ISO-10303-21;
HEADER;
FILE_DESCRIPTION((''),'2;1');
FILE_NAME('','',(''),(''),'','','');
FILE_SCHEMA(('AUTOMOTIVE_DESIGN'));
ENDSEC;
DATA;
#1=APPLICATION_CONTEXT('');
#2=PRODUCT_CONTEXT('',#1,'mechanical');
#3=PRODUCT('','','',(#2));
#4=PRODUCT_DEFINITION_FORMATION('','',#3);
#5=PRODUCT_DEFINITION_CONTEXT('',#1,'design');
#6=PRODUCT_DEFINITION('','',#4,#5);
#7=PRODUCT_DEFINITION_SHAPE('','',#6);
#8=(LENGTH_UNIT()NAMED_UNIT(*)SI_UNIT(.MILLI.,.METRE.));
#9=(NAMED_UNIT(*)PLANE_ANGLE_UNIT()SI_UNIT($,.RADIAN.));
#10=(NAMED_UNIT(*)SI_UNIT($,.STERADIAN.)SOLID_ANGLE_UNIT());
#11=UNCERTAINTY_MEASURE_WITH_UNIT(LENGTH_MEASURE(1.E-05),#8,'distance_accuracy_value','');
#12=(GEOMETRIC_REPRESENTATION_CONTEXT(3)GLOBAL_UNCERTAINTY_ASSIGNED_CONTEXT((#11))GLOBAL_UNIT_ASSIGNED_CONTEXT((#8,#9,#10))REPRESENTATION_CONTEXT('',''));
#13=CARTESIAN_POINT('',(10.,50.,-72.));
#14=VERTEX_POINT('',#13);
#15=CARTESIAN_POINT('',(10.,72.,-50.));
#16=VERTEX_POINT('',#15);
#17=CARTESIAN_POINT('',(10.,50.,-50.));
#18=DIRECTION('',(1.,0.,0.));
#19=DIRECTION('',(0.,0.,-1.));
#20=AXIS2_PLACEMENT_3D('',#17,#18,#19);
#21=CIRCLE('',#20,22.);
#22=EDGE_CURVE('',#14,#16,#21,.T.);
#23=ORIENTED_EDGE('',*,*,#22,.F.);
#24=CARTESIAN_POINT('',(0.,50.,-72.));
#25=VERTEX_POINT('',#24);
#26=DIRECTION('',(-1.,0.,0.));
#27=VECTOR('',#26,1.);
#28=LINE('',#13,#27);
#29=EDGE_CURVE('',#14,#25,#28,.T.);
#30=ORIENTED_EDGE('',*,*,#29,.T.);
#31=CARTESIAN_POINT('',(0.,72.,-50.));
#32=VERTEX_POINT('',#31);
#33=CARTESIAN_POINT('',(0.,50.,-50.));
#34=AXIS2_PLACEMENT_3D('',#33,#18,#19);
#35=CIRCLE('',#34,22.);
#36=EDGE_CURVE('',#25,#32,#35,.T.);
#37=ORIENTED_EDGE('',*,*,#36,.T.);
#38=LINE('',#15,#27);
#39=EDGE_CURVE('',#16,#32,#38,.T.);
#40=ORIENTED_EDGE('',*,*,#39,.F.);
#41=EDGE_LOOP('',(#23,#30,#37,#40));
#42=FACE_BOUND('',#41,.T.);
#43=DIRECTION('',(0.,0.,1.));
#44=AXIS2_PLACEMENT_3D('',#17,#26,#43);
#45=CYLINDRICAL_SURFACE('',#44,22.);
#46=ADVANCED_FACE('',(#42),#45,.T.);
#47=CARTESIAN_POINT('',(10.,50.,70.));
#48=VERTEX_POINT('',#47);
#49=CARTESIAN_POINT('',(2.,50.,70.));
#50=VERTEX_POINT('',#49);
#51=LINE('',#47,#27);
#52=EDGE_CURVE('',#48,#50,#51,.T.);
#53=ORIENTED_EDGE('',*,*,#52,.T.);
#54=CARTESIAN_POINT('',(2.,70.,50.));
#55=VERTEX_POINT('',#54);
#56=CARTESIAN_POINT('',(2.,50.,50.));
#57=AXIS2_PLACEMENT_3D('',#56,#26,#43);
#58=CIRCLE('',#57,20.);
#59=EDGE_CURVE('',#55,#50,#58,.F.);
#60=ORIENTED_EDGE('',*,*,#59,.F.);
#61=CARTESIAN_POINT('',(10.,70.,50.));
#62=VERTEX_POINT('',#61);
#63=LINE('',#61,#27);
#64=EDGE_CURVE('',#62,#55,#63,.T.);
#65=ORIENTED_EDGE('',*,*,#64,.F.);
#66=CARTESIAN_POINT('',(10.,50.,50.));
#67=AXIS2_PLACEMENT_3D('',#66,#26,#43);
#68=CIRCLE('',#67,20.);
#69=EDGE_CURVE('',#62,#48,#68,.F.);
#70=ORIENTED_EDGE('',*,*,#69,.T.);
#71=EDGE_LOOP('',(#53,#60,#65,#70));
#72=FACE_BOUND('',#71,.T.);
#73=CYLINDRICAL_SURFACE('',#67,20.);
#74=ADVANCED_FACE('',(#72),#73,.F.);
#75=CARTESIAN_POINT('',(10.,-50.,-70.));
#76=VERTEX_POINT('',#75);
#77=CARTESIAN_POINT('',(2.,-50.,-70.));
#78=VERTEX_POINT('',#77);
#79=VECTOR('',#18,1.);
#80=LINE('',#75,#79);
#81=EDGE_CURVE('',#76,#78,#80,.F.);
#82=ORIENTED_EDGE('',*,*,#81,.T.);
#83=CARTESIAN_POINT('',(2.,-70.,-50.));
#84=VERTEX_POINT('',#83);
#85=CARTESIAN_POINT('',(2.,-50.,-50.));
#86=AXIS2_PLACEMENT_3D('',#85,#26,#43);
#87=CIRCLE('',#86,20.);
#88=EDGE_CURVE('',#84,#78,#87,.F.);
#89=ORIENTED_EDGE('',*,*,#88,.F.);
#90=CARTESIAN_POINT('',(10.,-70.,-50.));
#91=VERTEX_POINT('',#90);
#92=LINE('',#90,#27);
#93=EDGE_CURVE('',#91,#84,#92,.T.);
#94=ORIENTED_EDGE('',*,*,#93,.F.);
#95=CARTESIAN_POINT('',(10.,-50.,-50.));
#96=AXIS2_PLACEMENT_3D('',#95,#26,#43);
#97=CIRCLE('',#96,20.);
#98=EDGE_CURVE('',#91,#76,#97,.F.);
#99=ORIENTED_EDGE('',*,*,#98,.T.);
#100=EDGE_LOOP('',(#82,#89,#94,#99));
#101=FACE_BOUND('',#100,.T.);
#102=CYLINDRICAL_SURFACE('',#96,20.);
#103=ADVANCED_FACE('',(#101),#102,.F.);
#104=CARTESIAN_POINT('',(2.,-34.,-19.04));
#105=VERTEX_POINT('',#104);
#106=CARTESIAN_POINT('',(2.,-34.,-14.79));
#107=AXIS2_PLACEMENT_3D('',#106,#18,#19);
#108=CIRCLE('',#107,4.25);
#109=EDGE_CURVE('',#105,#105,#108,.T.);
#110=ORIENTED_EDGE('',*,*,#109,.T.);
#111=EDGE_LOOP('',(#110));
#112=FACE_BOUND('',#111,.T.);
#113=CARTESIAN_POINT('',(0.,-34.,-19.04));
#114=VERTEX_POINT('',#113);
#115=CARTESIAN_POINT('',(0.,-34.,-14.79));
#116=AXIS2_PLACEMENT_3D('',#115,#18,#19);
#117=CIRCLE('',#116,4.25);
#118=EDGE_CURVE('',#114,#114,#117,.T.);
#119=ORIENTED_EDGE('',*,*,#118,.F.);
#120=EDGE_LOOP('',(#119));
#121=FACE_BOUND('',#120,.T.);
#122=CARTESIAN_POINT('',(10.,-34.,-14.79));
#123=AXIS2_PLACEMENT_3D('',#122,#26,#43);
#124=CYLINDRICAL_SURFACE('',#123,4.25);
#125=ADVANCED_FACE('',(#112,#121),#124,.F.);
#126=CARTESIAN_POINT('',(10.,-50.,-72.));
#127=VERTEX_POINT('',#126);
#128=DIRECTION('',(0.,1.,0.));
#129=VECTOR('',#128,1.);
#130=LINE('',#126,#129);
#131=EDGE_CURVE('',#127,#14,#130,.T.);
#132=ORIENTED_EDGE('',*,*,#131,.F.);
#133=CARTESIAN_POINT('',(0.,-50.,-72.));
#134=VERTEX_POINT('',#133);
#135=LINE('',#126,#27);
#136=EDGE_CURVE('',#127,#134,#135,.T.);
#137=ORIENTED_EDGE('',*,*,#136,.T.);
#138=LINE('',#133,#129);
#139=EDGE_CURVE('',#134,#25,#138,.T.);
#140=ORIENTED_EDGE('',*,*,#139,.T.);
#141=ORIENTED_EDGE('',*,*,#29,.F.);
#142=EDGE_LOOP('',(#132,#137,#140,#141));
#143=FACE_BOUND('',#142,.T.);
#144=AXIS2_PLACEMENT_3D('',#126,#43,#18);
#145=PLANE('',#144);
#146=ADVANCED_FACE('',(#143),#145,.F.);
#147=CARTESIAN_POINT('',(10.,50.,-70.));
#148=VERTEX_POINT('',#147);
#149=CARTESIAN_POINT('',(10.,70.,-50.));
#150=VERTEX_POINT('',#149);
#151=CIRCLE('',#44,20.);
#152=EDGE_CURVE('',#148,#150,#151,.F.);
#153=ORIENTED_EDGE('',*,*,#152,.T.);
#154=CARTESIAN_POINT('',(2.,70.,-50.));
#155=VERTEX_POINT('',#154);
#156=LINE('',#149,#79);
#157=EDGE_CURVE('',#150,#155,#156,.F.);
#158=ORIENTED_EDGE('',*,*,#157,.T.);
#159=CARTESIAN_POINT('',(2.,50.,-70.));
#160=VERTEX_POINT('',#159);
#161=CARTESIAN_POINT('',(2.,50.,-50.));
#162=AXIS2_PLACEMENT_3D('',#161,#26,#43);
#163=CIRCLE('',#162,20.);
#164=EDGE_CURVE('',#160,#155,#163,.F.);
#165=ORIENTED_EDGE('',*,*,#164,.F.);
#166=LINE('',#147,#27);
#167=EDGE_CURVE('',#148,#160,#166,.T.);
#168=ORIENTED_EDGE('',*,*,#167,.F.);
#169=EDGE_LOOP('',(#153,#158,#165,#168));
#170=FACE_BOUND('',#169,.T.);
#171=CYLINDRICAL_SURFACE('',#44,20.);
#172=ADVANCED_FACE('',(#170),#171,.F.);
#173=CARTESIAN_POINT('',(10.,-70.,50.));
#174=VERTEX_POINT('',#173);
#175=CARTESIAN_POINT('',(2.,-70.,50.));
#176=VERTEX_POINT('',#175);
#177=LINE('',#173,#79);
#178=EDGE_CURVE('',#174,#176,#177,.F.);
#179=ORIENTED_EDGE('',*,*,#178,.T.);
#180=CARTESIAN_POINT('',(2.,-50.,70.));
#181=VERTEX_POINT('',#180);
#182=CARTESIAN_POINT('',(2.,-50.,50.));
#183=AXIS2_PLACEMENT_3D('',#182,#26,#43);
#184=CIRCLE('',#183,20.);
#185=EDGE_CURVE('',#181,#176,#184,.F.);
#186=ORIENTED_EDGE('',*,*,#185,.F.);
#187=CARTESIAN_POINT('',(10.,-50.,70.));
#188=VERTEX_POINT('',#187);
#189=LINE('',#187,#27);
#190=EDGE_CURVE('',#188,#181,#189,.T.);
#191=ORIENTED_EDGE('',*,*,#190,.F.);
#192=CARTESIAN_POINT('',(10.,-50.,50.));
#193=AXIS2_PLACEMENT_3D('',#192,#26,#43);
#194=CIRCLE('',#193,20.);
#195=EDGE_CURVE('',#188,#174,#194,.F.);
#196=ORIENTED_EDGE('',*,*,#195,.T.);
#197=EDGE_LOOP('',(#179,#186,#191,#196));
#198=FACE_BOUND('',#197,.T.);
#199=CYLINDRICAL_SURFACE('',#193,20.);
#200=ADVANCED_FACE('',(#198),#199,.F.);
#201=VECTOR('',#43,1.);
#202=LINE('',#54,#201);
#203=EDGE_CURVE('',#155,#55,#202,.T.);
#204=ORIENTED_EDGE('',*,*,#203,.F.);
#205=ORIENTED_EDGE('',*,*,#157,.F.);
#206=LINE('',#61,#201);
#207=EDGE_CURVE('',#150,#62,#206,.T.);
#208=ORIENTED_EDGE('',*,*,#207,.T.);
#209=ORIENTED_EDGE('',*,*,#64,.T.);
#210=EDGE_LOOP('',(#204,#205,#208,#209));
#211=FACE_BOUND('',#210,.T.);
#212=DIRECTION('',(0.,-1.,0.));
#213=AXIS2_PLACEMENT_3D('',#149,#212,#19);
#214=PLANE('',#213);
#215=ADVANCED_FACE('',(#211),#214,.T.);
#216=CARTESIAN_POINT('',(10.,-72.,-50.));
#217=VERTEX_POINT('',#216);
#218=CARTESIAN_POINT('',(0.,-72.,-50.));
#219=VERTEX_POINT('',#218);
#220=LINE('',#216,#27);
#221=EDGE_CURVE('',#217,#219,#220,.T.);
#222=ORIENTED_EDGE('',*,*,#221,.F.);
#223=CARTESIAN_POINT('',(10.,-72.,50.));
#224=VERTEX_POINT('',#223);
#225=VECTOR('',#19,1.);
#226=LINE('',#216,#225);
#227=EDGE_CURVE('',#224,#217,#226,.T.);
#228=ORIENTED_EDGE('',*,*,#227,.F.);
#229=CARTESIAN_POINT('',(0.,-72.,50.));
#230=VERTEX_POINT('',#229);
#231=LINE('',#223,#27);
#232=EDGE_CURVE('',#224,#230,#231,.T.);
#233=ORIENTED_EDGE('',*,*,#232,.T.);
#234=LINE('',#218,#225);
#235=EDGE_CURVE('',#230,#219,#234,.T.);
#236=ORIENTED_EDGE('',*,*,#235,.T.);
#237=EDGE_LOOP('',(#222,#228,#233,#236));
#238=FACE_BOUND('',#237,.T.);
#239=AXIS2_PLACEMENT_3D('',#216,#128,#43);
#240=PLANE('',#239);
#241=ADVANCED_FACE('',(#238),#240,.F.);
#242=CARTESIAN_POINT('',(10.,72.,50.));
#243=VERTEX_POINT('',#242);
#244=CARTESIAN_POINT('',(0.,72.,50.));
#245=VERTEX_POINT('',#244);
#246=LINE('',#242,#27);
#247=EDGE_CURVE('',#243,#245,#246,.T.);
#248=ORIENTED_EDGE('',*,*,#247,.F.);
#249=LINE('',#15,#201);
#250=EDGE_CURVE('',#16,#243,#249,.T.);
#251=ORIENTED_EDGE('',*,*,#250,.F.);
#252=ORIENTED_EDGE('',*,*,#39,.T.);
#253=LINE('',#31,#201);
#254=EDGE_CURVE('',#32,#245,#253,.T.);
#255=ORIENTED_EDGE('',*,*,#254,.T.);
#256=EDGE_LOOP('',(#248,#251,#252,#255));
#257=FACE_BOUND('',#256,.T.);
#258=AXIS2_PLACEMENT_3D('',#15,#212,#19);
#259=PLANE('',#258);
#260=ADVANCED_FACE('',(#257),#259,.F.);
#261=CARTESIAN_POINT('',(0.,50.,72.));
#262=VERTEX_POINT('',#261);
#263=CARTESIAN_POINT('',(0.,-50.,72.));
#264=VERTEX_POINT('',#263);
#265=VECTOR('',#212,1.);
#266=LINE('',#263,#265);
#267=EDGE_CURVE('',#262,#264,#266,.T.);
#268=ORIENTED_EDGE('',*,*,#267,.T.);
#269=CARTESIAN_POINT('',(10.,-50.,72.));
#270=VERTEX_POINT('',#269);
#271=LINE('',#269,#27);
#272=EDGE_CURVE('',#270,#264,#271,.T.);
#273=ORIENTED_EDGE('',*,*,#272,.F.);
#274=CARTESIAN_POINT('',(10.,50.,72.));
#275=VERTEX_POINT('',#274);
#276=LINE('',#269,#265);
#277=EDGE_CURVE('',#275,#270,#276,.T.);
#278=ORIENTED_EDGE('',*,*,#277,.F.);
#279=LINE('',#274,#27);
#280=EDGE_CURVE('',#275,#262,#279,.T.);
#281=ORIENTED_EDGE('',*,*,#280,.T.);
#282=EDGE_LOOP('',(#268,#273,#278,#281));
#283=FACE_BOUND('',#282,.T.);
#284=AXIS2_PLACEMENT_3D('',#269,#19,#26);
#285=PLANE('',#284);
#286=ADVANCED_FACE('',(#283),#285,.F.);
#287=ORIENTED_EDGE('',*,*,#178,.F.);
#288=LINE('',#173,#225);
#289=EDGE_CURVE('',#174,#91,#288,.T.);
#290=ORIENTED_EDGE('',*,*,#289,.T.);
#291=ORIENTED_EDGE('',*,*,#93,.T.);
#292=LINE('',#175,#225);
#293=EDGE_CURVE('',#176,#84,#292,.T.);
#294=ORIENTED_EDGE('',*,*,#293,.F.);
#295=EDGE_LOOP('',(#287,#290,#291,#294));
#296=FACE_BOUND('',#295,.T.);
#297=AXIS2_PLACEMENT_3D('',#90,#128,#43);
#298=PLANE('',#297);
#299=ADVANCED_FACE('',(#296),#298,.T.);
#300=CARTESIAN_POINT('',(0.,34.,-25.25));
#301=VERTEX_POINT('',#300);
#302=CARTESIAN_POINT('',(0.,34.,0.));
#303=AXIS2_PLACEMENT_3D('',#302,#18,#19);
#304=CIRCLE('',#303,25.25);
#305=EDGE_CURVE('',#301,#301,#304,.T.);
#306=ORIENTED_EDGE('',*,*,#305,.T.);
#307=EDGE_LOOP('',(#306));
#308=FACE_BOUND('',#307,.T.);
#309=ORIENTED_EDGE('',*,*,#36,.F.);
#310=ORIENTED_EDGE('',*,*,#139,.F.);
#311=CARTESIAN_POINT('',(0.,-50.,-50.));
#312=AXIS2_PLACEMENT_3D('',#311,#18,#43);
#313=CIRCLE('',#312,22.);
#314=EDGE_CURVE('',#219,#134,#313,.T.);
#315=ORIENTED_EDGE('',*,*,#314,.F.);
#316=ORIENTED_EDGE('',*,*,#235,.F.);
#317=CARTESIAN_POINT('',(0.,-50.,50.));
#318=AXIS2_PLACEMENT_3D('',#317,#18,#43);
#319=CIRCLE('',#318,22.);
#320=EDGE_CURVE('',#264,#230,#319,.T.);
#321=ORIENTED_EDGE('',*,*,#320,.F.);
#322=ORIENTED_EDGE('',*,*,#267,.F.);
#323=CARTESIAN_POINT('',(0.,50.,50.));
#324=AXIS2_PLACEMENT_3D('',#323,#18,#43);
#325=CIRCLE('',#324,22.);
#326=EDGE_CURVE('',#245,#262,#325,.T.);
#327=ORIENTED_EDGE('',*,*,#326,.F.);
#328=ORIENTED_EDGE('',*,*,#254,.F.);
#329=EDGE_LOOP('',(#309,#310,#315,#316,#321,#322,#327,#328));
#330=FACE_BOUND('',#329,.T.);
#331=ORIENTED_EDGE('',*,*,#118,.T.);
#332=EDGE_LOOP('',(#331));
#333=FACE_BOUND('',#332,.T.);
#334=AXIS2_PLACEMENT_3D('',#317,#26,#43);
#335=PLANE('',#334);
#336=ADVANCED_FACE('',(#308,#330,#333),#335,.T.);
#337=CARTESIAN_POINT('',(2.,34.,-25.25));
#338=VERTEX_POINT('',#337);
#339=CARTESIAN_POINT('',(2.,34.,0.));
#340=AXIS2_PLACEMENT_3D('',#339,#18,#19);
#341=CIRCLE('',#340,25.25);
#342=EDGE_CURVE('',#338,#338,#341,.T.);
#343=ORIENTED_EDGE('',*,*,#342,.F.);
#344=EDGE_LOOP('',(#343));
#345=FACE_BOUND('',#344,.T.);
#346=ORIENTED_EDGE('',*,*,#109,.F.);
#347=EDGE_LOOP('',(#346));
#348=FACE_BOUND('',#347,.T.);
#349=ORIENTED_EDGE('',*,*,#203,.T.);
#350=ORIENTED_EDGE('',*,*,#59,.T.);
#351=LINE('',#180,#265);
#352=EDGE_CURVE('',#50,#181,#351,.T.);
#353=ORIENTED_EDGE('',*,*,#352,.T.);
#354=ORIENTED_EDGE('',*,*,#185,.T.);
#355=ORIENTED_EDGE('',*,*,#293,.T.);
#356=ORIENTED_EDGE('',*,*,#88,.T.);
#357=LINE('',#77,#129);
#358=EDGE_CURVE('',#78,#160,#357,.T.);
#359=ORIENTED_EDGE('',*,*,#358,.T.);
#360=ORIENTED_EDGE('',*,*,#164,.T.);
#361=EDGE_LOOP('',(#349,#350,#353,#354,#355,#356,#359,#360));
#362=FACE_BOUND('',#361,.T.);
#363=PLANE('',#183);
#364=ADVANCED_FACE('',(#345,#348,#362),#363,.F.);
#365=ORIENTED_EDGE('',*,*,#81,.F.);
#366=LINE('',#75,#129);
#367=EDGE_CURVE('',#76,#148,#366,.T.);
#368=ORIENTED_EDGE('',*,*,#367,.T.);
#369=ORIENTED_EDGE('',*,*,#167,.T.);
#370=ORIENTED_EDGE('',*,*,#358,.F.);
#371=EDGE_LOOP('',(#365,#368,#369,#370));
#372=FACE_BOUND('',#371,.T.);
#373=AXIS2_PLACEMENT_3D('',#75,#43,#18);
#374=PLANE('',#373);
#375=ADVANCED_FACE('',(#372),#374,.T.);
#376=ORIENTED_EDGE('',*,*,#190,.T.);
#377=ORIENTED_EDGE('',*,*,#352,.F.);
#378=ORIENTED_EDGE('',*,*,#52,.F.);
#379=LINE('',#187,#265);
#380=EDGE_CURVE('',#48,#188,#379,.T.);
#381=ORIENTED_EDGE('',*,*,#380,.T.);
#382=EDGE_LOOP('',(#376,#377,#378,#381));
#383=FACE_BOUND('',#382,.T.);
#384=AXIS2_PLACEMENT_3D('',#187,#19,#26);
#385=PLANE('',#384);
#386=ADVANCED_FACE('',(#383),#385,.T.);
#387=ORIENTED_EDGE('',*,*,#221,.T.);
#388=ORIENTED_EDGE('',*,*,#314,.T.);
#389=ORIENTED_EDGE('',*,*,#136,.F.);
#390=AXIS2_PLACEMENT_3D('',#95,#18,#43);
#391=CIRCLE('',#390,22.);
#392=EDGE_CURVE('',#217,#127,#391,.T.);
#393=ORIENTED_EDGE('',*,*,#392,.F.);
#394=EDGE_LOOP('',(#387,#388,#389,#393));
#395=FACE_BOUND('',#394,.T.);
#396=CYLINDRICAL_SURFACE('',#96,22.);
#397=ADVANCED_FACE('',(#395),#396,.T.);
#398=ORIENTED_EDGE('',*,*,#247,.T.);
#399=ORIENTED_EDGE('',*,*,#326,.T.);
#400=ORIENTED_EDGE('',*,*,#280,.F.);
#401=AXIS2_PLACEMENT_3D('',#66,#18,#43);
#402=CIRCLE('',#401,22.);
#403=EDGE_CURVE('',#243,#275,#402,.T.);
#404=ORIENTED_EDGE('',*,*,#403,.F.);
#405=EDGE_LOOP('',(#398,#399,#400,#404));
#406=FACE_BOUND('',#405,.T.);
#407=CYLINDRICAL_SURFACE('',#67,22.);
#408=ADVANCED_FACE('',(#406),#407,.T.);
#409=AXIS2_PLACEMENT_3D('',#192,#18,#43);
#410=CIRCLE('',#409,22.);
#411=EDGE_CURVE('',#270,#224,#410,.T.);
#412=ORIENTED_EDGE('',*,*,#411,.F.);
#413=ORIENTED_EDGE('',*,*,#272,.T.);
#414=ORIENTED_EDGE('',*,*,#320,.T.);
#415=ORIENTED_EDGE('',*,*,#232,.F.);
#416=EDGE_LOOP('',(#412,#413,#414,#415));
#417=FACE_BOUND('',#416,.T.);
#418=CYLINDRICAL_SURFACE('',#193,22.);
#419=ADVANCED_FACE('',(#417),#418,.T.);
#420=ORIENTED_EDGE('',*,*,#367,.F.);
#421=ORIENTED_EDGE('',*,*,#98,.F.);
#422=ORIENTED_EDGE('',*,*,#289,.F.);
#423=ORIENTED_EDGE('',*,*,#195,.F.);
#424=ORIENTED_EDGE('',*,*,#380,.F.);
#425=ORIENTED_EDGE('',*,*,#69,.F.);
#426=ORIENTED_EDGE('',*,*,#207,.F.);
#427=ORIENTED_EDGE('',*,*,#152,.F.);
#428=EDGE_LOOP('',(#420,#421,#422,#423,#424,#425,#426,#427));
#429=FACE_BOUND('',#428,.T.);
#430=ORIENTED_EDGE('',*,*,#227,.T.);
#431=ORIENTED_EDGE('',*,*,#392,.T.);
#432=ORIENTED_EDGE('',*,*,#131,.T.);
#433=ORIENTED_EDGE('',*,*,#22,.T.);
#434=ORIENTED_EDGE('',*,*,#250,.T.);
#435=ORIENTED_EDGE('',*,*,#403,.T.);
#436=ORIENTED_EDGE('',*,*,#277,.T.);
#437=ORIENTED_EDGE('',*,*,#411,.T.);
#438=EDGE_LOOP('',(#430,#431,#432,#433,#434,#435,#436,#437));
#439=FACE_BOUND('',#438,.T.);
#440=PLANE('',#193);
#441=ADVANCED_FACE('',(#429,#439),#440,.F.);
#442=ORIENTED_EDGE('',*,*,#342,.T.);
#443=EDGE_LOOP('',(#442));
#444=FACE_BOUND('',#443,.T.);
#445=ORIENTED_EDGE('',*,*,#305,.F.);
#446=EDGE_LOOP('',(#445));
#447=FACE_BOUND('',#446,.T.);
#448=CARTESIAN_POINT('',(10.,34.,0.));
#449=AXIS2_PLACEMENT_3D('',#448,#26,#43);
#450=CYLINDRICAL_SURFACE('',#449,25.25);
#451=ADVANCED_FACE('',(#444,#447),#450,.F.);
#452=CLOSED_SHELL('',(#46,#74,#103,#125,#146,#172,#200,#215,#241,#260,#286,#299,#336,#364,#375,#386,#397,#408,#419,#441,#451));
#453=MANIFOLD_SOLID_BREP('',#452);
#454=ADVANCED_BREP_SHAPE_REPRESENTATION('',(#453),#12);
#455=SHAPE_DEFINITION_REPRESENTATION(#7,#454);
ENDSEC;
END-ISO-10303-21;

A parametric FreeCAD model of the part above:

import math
import FreeCAD as App
import Part
import Sketcher
from FreeCAD import Vector
Q = App.Units.Quantity


def faces_at(feature, points):
    """Names of the faces that lie closest to the given points."""
    faces = feature.Shape.Faces
    near = lambda p: min(range(len(faces)), key=lambda i: faces[i].distToShape(Part.Vertex(*p))[0])
    return sorted({f"Face{near(p) + 1}" for p in points})

doc = App.newDocument("Part")
body = doc.addObject("PartDesign::Body", "Body")

# Sketch on YZ plane
sketch1 = body.newObject("Sketcher::SketchObject", "Sketch")
sketch1.AttachmentSupport = (doc.getObject("YZ_Plane"), [""])
sketch1.MapMode = "FlatFace"
sketch1.addGeometry(Part.LineSegment(Vector(50, 72, 0), Vector(-50, 72, 0)), False)
sketch1.addGeometry(Part.ArcOfCircle(Part.Circle(Vector(-50, 50, 0), Vector(0, 0, 1), 22), math.radians(90), math.radians(180)), False)
sketch1.addGeometry(Part.LineSegment(Vector(-72, 50, 0), Vector(-72, -50, 0)), False)
sketch1.addGeometry(Part.ArcOfCircle(Part.Circle(Vector(-50, -50, 0), Vector(0, 0, 1), 22), math.radians(180), math.radians(270)), False)
sketch1.addGeometry(Part.LineSegment(Vector(-50, -72, 0), Vector(50, -72, 0)), False)
sketch1.addGeometry(Part.ArcOfCircle(Part.Circle(Vector(50, -50, 0), Vector(0, 0, 1), 22), math.radians(-90), math.radians(0)), False)
sketch1.addGeometry(Part.LineSegment(Vector(72, -50, 0), Vector(72, 50, 0)), False)
sketch1.addGeometry(Part.ArcOfCircle(Part.Circle(Vector(50, 50, 0), Vector(0, 0, 1), 22), math.radians(0), math.radians(90)), False)
sketch1.addGeometry(Part.Circle(Vector(-34, -14.79, 0), Vector(0, 0, 1), 4.25), False)
sketch1.addGeometry(Part.Circle(Vector(34, 0, 0), Vector(0, 0, 1), 25.25), False)
sketch1.addConstraint(Sketcher.Constraint("Tangent", 0, 2, 1, 1))
sketch1.addConstraint(Sketcher.Constraint("Tangent", 1, 2, 2, 1))
sketch1.addConstraint(Sketcher.Constraint("Tangent", 2, 2, 3, 1))
sketch1.addConstraint(Sketcher.Constraint("Tangent", 3, 2, 4, 1))
sketch1.addConstraint(Sketcher.Constraint("Tangent", 4, 2, 5, 1))
sketch1.addConstraint(Sketcher.Constraint("Tangent", 5, 2, 6, 1))
sketch1.addConstraint(Sketcher.Constraint("Tangent", 6, 2, 7, 1))
sketch1.addConstraint(Sketcher.Constraint("Tangent", 7, 2, 0, 1))
sketch1.addConstraint(Sketcher.Constraint("Horizontal", 0))
sketch1.addConstraint(Sketcher.Constraint("Vertical", 2))
sketch1.addConstraint(Sketcher.Constraint("Horizontal", 4))
sketch1.addConstraint(Sketcher.Constraint("Vertical", 6))
sketch1.addConstraint(Sketcher.Constraint("Equal", 1, 3))
sketch1.addConstraint(Sketcher.Constraint("Equal", 3, 5))
sketch1.addConstraint(Sketcher.Constraint("Equal", 5, 7))
sketch1.addConstraint(Sketcher.Constraint("Symmetric", 1, 3, 5, 3, -1, 1))
sketch1.addConstraint(Sketcher.Constraint("PointOnObject", 9, 3, -1))
sketch1.addConstraint(Sketcher.Constraint("Equal", 4, 2))
sketch1.addConstraint(Sketcher.Constraint("Radius", 1, Q("22 mm")))
sketch1.addConstraint(Sketcher.Constraint("Diameter", 8, Q("8.5 mm")))
sketch1.addConstraint(Sketcher.Constraint("Diameter", 9, Q("50.5 mm")))
sketch1.addConstraint(Sketcher.Constraint("DistanceX", 0, 2, 0, 1, Q("100 mm")))
sketch1.addConstraint(Sketcher.Constraint("DistanceX", 8, 3, -1, 1, Q("34 mm")))
sketch1.addConstraint(Sketcher.Constraint("DistanceX", -1, 1, 9, 3, Q("34 mm")))
sketch1.addConstraint(Sketcher.Constraint("DistanceY", 8, 3, -1, 1, Q("14.79 mm")))
pad1 = body.newObject("PartDesign::Pad", "Pad")
pad1.Profile = sketch1
pad1.Length = 10
doc.recompute()

thickness = body.newObject("PartDesign::Thickness", "Thickness")
thickness.Base = (pad1, faces_at(pad1, [(10, 0, 0)]))
thickness.Value = 2
thickness.Reversed = True
thickness.Join = "Intersection"

# Sketch on YZ plane
sketch2 = body.newObject("Sketcher::SketchObject", "Sketch001")
sketch2.AttachmentSupport = (doc.getObject("YZ_Plane"), [""])
sketch2.MapMode = "FlatFace"
sketch2.AttachmentOffset = App.Placement(Vector(0, 0, 2), App.Rotation())
sketch2.addGeometry(Part.Circle(Vector(0, 0, 0), Vector(0, 0, 1), 63.400619), False)
sketch2.addConstraint(Sketcher.Constraint("Coincident", 0, 3, -1, 1))
sketch2.addConstraint(Sketcher.Constraint("Diameter", 0, Q("126.801238 mm")))
pocket1 = body.newObject("PartDesign::Pocket", "Pocket")
pocket1.Profile = sketch2
pocket1.Length = 29
pocket1.Reversed = True

doc.recompute()
